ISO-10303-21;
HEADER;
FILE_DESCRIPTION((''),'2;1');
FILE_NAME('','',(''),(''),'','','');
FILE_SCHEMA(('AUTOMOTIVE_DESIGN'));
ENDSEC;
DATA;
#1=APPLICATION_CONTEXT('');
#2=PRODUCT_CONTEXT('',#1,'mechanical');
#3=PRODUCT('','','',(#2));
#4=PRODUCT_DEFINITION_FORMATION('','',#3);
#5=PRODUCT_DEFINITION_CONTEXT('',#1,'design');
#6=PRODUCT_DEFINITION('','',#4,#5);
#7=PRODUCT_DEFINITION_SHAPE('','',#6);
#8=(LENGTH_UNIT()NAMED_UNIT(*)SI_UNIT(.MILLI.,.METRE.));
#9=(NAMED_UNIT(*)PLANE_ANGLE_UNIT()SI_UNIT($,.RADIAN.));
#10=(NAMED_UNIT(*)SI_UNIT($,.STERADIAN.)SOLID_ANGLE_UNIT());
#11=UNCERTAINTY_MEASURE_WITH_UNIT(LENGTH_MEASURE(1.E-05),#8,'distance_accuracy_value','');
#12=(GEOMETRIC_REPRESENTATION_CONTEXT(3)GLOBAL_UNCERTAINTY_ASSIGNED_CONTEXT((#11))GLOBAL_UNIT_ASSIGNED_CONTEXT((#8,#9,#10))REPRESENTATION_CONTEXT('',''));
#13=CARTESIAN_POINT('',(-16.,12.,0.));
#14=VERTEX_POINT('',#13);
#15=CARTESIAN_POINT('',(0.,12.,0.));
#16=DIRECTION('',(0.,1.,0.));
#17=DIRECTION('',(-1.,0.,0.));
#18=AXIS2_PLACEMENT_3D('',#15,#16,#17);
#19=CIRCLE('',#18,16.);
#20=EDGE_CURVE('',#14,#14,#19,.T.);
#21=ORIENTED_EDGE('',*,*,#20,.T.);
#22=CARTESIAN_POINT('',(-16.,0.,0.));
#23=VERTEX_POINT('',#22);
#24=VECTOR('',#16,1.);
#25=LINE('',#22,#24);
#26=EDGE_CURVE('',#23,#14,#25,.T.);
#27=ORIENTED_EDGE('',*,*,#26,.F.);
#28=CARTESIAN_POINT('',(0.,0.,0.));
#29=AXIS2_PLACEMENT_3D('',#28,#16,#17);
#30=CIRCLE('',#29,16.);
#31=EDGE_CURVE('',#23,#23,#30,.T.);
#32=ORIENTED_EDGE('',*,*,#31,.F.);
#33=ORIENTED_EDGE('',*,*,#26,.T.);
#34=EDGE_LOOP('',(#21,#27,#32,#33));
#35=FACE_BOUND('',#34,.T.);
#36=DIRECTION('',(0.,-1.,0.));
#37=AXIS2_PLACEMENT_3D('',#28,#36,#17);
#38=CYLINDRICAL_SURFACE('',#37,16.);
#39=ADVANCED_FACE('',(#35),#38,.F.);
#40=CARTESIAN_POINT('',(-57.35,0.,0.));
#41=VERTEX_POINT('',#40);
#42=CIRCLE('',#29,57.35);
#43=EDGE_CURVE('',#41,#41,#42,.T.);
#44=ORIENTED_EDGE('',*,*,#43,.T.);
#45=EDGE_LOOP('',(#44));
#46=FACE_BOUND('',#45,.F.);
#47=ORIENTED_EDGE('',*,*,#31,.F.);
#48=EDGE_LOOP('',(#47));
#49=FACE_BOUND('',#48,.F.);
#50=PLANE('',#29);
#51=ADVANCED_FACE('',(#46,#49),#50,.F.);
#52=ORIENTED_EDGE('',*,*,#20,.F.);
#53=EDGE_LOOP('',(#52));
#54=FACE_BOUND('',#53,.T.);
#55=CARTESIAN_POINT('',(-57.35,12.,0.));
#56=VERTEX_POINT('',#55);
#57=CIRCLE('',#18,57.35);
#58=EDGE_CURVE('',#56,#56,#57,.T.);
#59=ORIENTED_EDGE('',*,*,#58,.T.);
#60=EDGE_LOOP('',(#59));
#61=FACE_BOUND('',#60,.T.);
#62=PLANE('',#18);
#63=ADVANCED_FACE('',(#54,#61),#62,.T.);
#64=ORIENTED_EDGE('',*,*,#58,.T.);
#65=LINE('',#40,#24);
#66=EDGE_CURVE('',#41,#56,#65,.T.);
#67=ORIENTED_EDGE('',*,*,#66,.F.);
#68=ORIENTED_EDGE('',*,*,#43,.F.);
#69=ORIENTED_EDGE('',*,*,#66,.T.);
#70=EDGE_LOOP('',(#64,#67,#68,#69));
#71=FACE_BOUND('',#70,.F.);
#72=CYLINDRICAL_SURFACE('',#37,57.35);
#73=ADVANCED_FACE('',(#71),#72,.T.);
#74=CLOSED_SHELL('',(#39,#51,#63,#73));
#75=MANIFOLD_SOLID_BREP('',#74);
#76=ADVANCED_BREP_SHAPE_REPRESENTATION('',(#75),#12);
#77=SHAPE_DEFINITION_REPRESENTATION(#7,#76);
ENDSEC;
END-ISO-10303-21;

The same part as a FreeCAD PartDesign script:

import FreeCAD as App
import Part
import Sketcher

V = App.Vector
Q = App.Units.Quantity

doc = App.newDocument("Part")
body = doc.addObject("PartDesign::Body", "Body")

# Sketch on XZ plane
sketch1 = body.newObject("Sketcher::SketchObject", "Sketch")
sketch1.AttachmentSupport = (doc.getObject("XZ_Plane"), [""])
sketch1.MapMode = "FlatFace"
sketch1.addGeometry([
    Part.Circle(V(0, 0, 0), V(0, 0, 1), 57),
    Part.Circle(V(0, 0, 0), V(0, 0, 1), 16),
], False)
sketch1.addConstraint([
    Sketcher.Constraint("Coincident", 0, 3, -1, 1),
    Sketcher.Constraint("Coincident", 1, 3, -1, 1),
    Sketcher.Constraint("Diameter", 0, Q("114.7 mm")),
    Sketcher.Constraint("Diameter", 1, Q("32 mm")),
])
pad1 = body.newObject("PartDesign::Pad", "Pad")
pad1.Profile = sketch1
pad1.Length = 12
pad1.Reversed = True

doc.recompute()
